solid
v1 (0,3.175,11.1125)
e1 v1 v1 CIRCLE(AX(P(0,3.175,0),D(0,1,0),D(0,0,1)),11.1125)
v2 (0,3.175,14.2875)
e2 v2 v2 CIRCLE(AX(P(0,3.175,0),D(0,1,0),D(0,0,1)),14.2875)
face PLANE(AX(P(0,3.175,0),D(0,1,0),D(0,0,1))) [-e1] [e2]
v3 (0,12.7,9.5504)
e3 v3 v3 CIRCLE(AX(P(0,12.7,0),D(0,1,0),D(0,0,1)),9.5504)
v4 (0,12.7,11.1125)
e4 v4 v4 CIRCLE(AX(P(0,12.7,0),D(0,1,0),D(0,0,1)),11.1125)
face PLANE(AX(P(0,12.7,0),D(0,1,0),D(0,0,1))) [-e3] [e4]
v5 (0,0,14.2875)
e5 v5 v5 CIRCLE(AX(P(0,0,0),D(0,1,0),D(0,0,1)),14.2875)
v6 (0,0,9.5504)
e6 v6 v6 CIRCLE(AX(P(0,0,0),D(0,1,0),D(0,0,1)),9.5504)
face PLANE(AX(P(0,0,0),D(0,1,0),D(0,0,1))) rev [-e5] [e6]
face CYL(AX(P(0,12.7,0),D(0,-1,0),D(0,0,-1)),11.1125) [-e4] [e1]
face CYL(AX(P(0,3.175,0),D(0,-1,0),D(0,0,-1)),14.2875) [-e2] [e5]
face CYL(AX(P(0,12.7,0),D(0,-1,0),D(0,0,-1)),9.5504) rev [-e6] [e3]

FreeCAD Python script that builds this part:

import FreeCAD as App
import Part
import Sketcher
from FreeCAD import Vector
Q = App.Units.Quantity

doc = App.newDocument("Part")
params = doc.addObject("Spreadsheet::Sheet", "Params")
for row, (alias, value) in enumerate([
    ("sketch1_diameter", "0.875 in"),
    ("sketch1_diameter2", "0.752 in"),
    ("pad1_length", "0.5 in"),
    ("sketch2_diameter", "1.125 in"),
    ("sketch2_diameter2", "0.875 in"),
    ("pad2_length", "0.125 in"),
], start=1):
    params.set(f"A{row}", alias)
    params.set(f"B{row}", "=" + value)
    params.setAlias(f"B{row}", alias)

body = doc.addObject("PartDesign::Body", "Body")

# Sketch on XZ plane
sketch1 = doc.addObject("Sketcher::SketchObject", "Sketch")
body.addObject(sketch1)
sketch1.AttachmentSupport = (doc.XZ_Plane, [""])
sketch1.MapMode = "FlatFace"
sketch1.addGeometry(Part.Circle(Vector(0, 0, 0), Vector(0, 0, 1), 11), False)
sketch1.addGeometry(Part.Circle(Vector(0, 0, 0), Vector(0, 0, 1), 10), False)
sketch1.addConstraint(Sketcher.Constraint("Coincident", 0, 3, -1, 1))
sketch1.addConstraint(Sketcher.Constraint("Coincident", 1, 3, -1, 1))
sketch1.addConstraint(Sketcher.Constraint("Diameter", 0, Q("0.875 in")))
sketch1.addConstraint(Sketcher.Constraint("Diameter", 1, Q("0.752 in")))
sketch1.setExpression("Constraints[2]", "Params.sketch1_diameter")
sketch1.setExpression("Constraints[3]", "Params.sketch1_diameter2")
pad1 = doc.addObject("PartDesign::Pad", "Pad")
body.addObject(pad1)
pad1.Profile = sketch1
pad1.setExpression("Length", "Params.pad1_length")
pad1.Reversed = True

# Sketch on XZ plane
sketch2 = doc.addObject("Sketcher::SketchObject", "Sketch001")
body.addObject(sketch2)
sketch2.AttachmentSupport = (doc.XZ_Plane, [""])
sketch2.MapMode = "FlatFace"
sketch2.addGeometry(Part.Circle(Vector(0, 0, 0), Vector(0, 0, 1), 14), False)
sketch2.addGeometry(Part.Circle(Vector(0, 0, 0), Vector(0, 0, 1), 11), False)
sketch2.addConstraint(Sketcher.Constraint("Coincident", 0, 3, -1, 1))
sketch2.addConstraint(Sketcher.Constraint("Coincident", 1, 3, -1, 1))
sketch2.addConstraint(Sketcher.Constraint("Diameter", 0, Q("1.125 in")))
sketch2.addConstraint(Sketcher.Constraint("Diameter", 1, Q("0.875 in")))
sketch2.setExpression("Constraints[2]", "Params.sketch2_diameter")
sketch2.setExpression("Constraints[3]", "Params.sketch2_diameter2")
pad2 = doc.addObject("PartDesign::Pad", "Pad001")
body.addObject(pad2)
pad2.Profile = sketch2
pad2.setExpression("Length", "Params.pad2_length")
pad2.Reversed = True

doc.recompute()
